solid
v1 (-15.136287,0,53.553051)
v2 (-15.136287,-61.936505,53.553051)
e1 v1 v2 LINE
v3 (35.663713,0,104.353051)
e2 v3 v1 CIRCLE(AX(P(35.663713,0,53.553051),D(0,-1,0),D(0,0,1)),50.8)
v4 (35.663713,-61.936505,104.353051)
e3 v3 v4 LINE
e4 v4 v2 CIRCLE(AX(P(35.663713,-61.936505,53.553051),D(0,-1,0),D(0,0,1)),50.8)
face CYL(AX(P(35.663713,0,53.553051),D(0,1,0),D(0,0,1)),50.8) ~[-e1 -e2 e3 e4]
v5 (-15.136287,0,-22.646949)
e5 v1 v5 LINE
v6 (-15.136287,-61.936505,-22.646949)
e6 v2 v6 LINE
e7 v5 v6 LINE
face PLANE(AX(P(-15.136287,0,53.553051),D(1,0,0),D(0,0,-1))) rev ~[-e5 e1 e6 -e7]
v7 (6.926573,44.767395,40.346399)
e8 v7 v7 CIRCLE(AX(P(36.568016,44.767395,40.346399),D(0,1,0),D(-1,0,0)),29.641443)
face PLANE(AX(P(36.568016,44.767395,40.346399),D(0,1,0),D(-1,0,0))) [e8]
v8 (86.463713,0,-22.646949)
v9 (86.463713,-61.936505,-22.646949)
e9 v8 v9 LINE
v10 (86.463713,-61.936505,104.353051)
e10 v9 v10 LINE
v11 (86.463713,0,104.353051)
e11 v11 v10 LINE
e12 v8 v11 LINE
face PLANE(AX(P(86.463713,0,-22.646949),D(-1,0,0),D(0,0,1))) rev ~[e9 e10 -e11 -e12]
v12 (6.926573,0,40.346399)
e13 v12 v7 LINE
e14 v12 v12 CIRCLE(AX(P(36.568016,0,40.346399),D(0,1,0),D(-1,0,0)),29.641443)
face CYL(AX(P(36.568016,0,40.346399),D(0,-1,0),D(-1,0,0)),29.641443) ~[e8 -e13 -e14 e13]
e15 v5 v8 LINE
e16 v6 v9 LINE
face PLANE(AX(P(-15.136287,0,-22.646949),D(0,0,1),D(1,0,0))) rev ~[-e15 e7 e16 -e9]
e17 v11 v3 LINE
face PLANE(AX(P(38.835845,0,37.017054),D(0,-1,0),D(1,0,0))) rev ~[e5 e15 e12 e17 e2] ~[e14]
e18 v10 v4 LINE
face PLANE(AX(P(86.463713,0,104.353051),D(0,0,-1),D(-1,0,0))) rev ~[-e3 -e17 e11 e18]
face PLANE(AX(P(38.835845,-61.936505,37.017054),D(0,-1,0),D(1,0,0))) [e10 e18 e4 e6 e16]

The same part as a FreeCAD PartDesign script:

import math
import FreeCAD as App
import Part
import Sketcher
Q = App.Units.Quantity

doc = App.newDocument("Part")
body = doc.addObject("PartDesign::Body", "Body")

sketch1 = body.newObject("Sketcher::SketchObject", "Sketch")
sketch1.AttachmentSupport = (doc.getObject("XZ_Plane"), [""])
sketch1.MapMode = "FlatFace"
sketch1.addGeometry(Part.LineSegment(App.Vector(86.463713, 104.353051, 0), App.Vector(35.663713, 104.353051, 0)), False)
sketch1.addGeometry(Part.ArcOfCircle(Part.Circle(App.Vector(35.663713, 53.553051, 0), App.Vector(0, 0, 1), 50.8), math.radians(90), math.radians(180)), False)
sketch1.addGeometry(Part.LineSegment(App.Vector(-15.136287, 53.553051, 0), App.Vector(-15.136287, -22.646949, 0)), False)
sketch1.addGeometry(Part.LineSegment(App.Vector(-15.136287, -22.646949, 0), App.Vector(86.463713, -22.646949, 0)), False)
sketch1.addGeometry(Part.LineSegment(App.Vector(86.463713, -22.646949, 0), App.Vector(86.463713, 104.353051, 0)), False)
sketch1.addConstraint(Sketcher.Constraint("Tangent", 0, 2, 1, 1))
sketch1.addConstraint(Sketcher.Constraint("Tangent", 1, 2, 2, 1))
sketch1.addConstraint(Sketcher.Constraint("Coincident", 2, 2, 3, 1))
sketch1.addConstraint(Sketcher.Constraint("Coincident", 3, 2, 4, 1))
sketch1.addConstraint(Sketcher.Constraint("Coincident", 4, 2, 0, 1))
sketch1.addConstraint(Sketcher.Constraint("Horizontal", 0))
sketch1.addConstraint(Sketcher.Constraint("Vertical", 2))
sketch1.addConstraint(Sketcher.Constraint("Horizontal", 3))
sketch1.addConstraint(Sketcher.Constraint("Vertical", 4))
sketch1.addConstraint(Sketcher.Constraint("Radius", 1, Q("2 in")))
sketch1.addConstraint(Sketcher.Constraint("DistanceX", 0, 2, 0, 1, Q("2 in")))
sketch1.addConstraint(Sketcher.Constraint("DistanceY", 2, 2, 2, 1, Q("3 in")))
sketch1.addConstraint(Sketcher.Constraint("DistanceY", -1, 1, 1, 3, 53.553051))
sketch1.addConstraint(Sketcher.Constraint("DistanceX", -1, 1, 1, 3, 35.663713))
pad1 = body.newObject("PartDesign::Pad", "Pad")
pad1.Profile = sketch1
pad1.Length = 61.936505

sketch2 = body.newObject("Sketcher::SketchObject", "Sketch001")
sketch2.AttachmentSupport = (doc.getObject("XZ_Plane"), [""])
sketch2.MapMode = "FlatFace"
sketch2.addGeometry(Part.Circle(App.Vector(36.568016, 40.346399, 0), App.Vector(0, 0, 1), 29.641443), False)
sketch2.addConstraint(Sketcher.Constraint("Diameter", 0, 59.282886))
sketch2.addConstraint(Sketcher.Constraint("DistanceY", -1, 1, 0, 3, 40.346399))
sketch2.addConstraint(Sketcher.Constraint("DistanceX", -1, 1, 0, 3, 36.568016))
pad2 = body.newObject("PartDesign::Pad", "Pad001")
pad2.Profile = sketch2
pad2.Length = 44.767395
pad2.Reversed = True

doc.recompute()
